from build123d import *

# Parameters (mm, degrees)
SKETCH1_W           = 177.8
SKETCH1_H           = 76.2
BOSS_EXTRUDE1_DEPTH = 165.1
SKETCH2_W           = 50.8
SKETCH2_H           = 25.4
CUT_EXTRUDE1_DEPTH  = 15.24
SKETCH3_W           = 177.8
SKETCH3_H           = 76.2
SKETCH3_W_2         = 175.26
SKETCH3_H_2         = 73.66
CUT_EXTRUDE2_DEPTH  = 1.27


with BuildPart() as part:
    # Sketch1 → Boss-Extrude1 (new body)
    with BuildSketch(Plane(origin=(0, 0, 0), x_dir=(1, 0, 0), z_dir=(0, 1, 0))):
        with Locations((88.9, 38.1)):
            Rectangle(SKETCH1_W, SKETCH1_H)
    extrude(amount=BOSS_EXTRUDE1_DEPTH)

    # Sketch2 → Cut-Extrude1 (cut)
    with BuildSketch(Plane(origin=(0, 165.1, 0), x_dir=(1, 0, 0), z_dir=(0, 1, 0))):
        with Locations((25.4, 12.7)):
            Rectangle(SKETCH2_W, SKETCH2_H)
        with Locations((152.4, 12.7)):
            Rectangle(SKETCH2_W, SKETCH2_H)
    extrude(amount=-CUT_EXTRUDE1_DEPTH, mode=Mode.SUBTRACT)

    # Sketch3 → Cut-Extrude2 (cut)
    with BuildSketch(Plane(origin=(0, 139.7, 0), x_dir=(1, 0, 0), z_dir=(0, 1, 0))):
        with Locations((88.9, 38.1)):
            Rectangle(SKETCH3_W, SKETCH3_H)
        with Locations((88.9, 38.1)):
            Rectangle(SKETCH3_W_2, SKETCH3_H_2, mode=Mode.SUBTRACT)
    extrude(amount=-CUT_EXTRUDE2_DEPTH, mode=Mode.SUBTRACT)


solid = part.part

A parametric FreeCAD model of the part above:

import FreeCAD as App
import Part
import Sketcher
Q = App.Units.Quantity


def add_polygon(sketch, points):
    """Adds a closed chain of lines whose ends are joined by coincident constraints."""
    first, n = sketch.GeometryCount, len(points)
    for a, b in zip(points, points[1:] + points[:1]):
        sketch.addGeometry(Part.LineSegment(App.Vector(*a, 0), App.Vector(*b, 0)), False)
    for i in range(n):
        sketch.addConstraint(Sketcher.Constraint("Coincident", first + i, 2, first + (i + 1) % n, 1))

doc = App.newDocument("Part")
params = doc.addObject("Spreadsheet::Sheet", "Params")
for row, (alias, value) in enumerate([
    ("sketch1_width", "7 in"),
    ("sketch1_height", "3 in"),
    ("pad1_length", "6.5 in"),
    ("sketch2_width", "2 in"),
    ("sketch2_height", "1 in"),
    ("pocket1_length", "0.6 in"),
    ("sketch3_width", "7 in"),
    ("sketch3_height", "3 in"),
    ("sketch3_width2", "6.9 in"),
    ("sketch3_height2", "2.9 in"),
    ("pocket2_length", "0.05 in"),
], start=1):
    params.set(f"A{row}", alias)
    params.set(f"B{row}", "=" + value)
    params.setAlias(f"B{row}", alias)

body = doc.addObject("PartDesign::Body", "Body")

sketch1 = body.newObject("Sketcher::SketchObject", "Sketch")
sketch1.AttachmentSupport = (doc.getObject("XZ_Plane"), [""])
sketch1.MapMode = "FlatFace"
add_polygon(sketch1, [(0, -76), (0, 0), (178, 0), (178, -76)])
sketch1.addConstraint(Sketcher.Constraint("Vertical", 0))
sketch1.addConstraint(Sketcher.Constraint("Horizontal", 1))
sketch1.addConstraint(Sketcher.Constraint("Vertical", 2))
sketch1.addConstraint(Sketcher.Constraint("Horizontal", 3))
sketch1.addConstraint(Sketcher.Constraint("Coincident", 0, 2, -1, 1))
sketch1.addConstraint(Sketcher.Constraint("DistanceX", 1, 1, 1, 2, Q("7 in")))
sketch1.addConstraint(Sketcher.Constraint("DistanceY", 0, 1, 0, 2, Q("3 in")))
sketch1.setExpression("Constraints[9]", "Params.sketch1_width")
sketch1.setExpression("Constraints[10]", "Params.sketch1_height")
pad1 = body.newObject("PartDesign::Pad", "Pad")
pad1.Profile = sketch1
pad1.setExpression("Length", "Params.pad1_length")
pad1.Reversed = True

sketch2 = body.newObject("Sketcher::SketchObject", "Sketch001")
sketch2.AttachmentSupport = (doc.getObject("XZ_Plane"), [""])
sketch2.MapMode = "FlatFace"
sketch2.AttachmentOffset = App.Placement(App.Vector(0, 0, -6.5 * 25.4), App.Rotation())
add_polygon(sketch2, [(0, -25), (0, 0), (51, 0), (51, -25)])
add_polygon(sketch2, [(127, -25), (127, 0), (178, 0), (178, -25)])
sketch2.addConstraint(Sketcher.Constraint("Vertical", 0))
sketch2.addConstraint(Sketcher.Constraint("Horizontal", 1))
sketch2.addConstraint(Sketcher.Constraint("Vertical", 2))
sketch2.addConstraint(Sketcher.Constraint("Horizontal", 3))
sketch2.addConstraint(Sketcher.Constraint("Vertical", 4))
sketch2.addConstraint(Sketcher.Constraint("Horizontal", 5))
sketch2.addConstraint(Sketcher.Constraint("Vertical", 6))
sketch2.addConstraint(Sketcher.Constraint("Horizontal", 7))
sketch2.addConstraint(Sketcher.Constraint("Coincident", 0, 2, -1, 1))
sketch2.addConstraint(Sketcher.Constraint("PointOnObject", 4, 2, -1))
sketch2.addConstraint(Sketcher.Constraint("Horizontal", 3, 2, 6, 2))
sketch2.addConstraint(Sketcher.Constraint("Equal", 3, 5))
sketch2.addConstraint(Sketcher.Constraint("DistanceX", 1, 1, 1, 2, Q("2 in")))
sketch2.addConstraint(Sketcher.Constraint("DistanceY", 0, 1, 0, 2, Q("1 in")))
sketch2.addConstraint(Sketcher.Constraint("DistanceX", -1, 1, 4, 2, Q("5 in")))
sketch2.setExpression("Constraints[20]", "Params.sketch2_width")
sketch2.setExpression("Constraints[21]", "Params.sketch2_height")
pocket1 = body.newObject("PartDesign::Pocket", "Pocket")
pocket1.Profile = sketch2
pocket1.setExpression("Length", "Params.pocket1_length")
pocket1.Reversed = True

sketch3 = body.newObject("Sketcher::SketchObject", "Sketch002")
sketch3.AttachmentSupport = (doc.getObject("XZ_Plane"), [""])
sketch3.MapMode = "FlatFace"
sketch3.AttachmentOffset = App.Placement(App.Vector(0, 0, -5.5 * 25.4), App.Rotation())
add_polygon(sketch3, [(0, -76), (0, 0), (178, 0), (178, -76)])
add_polygon(sketch3, [(177, -1), (1, -1), (1, -75), (177, -75)])
sketch3.addConstraint(Sketcher.Constraint("Vertical", 0))
sketch3.addConstraint(Sketcher.Constraint("Horizontal", 1))
sketch3.addConstraint(Sketcher.Constraint("Vertical", 2))
sketch3.addConstraint(Sketcher.Constraint("Horizontal", 3))
sketch3.addConstraint(Sketcher.Constraint("Horizontal", 4))
sketch3.addConstraint(Sketcher.Constraint("Vertical", 5))
sketch3.addConstraint(Sketcher.Constraint("Horizontal", 6))
sketch3.addConstraint(Sketcher.Constraint("Vertical", 7))
sketch3.addConstraint(Sketcher.Constraint("Coincident", 0, 2, -1, 1))
sketch3.addConstraint(Sketcher.Constraint("DistanceX", 1, 1, 1, 2, Q("7 in")))
sketch3.addConstraint(Sketcher.Constraint("DistanceY", 0, 1, 0, 2, Q("3 in")))
sketch3.addConstraint(Sketcher.Constraint("DistanceX", 4, 2, 4, 1, Q("6.9 in")))
sketch3.addConstraint(Sketcher.Constraint("DistanceY", 5, 2, 5, 1, Q("2.9 in")))
sketch3.addConstraint(Sketcher.Constraint("DistanceX", -1, 1, 4, 2, Q("0.05 in")))
sketch3.addConstraint(Sketcher.Constraint("DistanceY", 4, 2, -1, 1, Q("0.05 in")))
sketch3.setExpression("Constraints[17]", "Params.sketch3_width")
sketch3.setExpression("Constraints[18]", "Params.sketch3_height")
sketch3.setExpression("Constraints[19]", "Params.sketch3_width2")
sketch3.setExpression("Constraints[20]", "Params.sketch3_height2")
pocket2 = body.newObject("PartDesign::Pocket", "Pocket001")
pocket2.Profile = sketch3
pocket2.setExpression("Length", "Params.pocket2_length")
pocket2.Reversed = True

doc.recompute()
